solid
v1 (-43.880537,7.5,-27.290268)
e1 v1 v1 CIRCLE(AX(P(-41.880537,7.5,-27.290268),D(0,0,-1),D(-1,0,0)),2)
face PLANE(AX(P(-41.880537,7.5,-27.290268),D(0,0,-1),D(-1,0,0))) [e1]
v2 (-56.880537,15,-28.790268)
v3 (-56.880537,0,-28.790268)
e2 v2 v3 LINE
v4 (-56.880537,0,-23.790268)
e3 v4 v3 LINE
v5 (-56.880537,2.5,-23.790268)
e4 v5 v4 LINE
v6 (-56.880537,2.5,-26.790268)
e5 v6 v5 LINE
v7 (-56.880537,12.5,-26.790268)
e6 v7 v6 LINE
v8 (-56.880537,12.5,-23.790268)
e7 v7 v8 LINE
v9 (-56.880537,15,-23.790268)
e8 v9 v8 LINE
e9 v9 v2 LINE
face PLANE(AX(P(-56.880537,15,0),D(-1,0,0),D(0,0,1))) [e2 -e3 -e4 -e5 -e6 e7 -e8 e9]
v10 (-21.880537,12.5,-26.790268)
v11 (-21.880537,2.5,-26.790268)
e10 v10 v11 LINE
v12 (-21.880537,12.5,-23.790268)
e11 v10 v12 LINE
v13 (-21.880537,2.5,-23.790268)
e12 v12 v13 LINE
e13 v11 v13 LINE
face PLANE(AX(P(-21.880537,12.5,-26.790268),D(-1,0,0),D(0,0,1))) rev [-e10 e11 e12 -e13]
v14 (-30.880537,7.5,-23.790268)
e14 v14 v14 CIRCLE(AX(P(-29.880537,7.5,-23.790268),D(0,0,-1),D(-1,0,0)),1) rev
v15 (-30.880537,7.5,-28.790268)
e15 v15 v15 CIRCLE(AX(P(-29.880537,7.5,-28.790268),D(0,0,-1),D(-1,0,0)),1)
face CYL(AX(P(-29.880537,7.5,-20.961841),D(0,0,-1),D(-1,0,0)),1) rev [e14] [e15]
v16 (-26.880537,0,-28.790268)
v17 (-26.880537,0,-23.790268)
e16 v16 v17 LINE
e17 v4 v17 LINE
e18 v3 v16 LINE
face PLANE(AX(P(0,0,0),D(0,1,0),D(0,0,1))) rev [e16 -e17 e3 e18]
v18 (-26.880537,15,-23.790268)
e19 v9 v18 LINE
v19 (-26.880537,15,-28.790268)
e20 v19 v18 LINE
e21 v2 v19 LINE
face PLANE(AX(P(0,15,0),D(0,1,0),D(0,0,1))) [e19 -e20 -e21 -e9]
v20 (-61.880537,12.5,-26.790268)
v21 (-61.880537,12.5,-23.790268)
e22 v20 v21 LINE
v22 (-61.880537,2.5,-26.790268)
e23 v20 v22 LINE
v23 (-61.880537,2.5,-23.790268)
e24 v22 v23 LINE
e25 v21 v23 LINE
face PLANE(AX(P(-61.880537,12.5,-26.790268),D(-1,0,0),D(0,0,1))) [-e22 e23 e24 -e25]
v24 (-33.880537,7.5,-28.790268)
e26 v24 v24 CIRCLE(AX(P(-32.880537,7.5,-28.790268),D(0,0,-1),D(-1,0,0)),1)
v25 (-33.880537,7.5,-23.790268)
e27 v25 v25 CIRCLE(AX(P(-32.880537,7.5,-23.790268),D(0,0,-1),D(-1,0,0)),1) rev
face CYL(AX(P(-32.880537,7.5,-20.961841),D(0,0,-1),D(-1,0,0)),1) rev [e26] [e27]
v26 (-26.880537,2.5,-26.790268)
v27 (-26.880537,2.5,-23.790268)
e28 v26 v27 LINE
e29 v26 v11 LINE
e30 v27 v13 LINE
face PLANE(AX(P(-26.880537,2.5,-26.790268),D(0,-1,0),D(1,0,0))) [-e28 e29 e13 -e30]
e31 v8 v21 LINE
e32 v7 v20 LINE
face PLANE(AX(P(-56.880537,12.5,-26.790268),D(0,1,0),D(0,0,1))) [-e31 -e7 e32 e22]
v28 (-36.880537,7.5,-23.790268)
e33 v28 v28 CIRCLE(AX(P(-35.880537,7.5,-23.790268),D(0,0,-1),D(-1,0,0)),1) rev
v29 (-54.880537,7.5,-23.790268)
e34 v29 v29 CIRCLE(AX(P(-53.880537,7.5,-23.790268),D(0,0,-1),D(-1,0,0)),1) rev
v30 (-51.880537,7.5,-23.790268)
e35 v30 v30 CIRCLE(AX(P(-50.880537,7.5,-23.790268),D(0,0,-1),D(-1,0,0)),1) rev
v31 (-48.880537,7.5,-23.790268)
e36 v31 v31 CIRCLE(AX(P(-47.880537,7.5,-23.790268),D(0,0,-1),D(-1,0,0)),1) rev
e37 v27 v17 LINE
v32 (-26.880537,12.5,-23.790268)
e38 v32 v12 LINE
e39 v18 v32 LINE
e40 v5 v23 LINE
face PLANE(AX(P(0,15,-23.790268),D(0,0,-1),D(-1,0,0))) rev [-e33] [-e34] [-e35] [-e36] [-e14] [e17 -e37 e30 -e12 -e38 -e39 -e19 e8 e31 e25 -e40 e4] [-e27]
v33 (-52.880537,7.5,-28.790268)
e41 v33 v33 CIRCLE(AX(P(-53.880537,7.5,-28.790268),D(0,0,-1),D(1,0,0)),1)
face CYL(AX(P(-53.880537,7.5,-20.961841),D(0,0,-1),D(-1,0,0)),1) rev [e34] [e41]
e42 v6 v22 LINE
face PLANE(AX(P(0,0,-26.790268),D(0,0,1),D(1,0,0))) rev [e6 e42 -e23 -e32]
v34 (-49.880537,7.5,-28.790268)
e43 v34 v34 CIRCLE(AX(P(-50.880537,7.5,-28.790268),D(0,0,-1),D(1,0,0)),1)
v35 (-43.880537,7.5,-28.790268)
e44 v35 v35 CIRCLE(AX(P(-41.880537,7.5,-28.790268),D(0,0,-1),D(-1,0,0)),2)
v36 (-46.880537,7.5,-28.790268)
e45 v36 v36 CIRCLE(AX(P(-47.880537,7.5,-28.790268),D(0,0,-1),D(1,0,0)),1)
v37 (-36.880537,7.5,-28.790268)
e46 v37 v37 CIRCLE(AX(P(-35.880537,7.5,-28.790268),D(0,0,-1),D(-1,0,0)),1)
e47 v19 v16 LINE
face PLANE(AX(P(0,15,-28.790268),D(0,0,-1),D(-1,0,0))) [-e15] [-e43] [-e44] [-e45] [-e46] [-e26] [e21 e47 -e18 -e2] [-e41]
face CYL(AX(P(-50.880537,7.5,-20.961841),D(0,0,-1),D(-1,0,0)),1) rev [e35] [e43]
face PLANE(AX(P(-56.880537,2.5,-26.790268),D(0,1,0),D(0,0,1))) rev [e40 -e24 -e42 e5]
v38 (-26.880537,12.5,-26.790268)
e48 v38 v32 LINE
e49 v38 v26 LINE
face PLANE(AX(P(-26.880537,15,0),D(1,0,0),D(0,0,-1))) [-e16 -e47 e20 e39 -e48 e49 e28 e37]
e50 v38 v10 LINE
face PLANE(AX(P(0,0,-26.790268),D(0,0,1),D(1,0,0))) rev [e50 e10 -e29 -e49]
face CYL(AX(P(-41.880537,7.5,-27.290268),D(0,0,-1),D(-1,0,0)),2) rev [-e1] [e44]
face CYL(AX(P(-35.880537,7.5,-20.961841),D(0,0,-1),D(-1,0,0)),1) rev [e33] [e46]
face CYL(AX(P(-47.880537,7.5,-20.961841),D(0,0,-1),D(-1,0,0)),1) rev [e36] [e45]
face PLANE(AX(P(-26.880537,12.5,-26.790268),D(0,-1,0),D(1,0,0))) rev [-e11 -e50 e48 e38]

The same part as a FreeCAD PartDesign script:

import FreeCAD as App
import Part
import Sketcher

V = App.Vector
Q = App.Units.Quantity


def add_polygon(sketch, points):
    """Adds a closed chain of lines whose ends are joined by coincident constraints."""
    first, n = sketch.GeometryCount, len(points)
    for a, b in zip(points, points[1:] + points[:1]):
        sketch.addGeometry(Part.LineSegment(App.Vector(*a, 0), App.Vector(*b, 0)), False)
    for i in range(n):
        sketch.addConstraint(Sketcher.Constraint("Coincident", first + i, 2, first + (i + 1) % n, 1))

doc = App.newDocument("Part")
body = doc.addObject("PartDesign::Body", "Body")

sketch1 = body.newObject("Sketcher::SketchObject", "Sketch")
sketch1.AttachmentSupport = (doc.getObject("XZ_Plane"), [""])
sketch1.MapMode = "FlatFace"
add_polygon(sketch1, [(-56.880537, -28.790268), (-56.880537, -23.790268), (-26.880537, -23.790268), (-26.880537, -28.790268)])
sketch1.addConstraint([
    Sketcher.Constraint("Vertical", 0),
    Sketcher.Constraint("Horizontal", 1),
    Sketcher.Constraint("Vertical", 2),
    Sketcher.Constraint("Horizontal", 3),
    Sketcher.Constraint("DistanceX", 1, 1, 1, 2, Q("30 mm")),
    Sketcher.Constraint("DistanceY", 0, 1, 0, 2, Q("5 mm")),
    Sketcher.Constraint("DistanceY", 0, 2, -1, 1, Q("23.790268 mm")),
    Sketcher.Constraint("DistanceX", 0, 2, -1, 1, Q("56.880537 mm")),
])
pad1 = body.newObject("PartDesign::Pad", "Pad")
pad1.Profile = sketch1
pad1.Length = 15
pad1.Reversed = True

sketch2 = body.newObject("Sketcher::SketchObject", "Sketch001")
sketch2.AttachmentSupport = (doc.getObject("XY_Plane"), [""])
sketch2.MapMode = "FlatFace"
sketch2.AttachmentOffset = App.Placement(V(0, 0, -28.790268), App.Rotation())
sketch2.addGeometry([
    Part.Circle(V(-35.880537, 7.5, 0), V(0, 0, 1), 1),
    Part.Circle(V(-32.880537, 7.5, 0), V(0, 0, 1), 1),
    Part.Circle(V(-29.880537, 7.5, 0), V(0, 0, 1), 1),
    Part.Circle(V(-53.880537, 7.5, 0), V(0, 0, 1), 1),
    Part.Circle(V(-50.880537, 7.5, 0), V(0, 0, 1), 1),
    Part.Circle(V(-47.880537, 7.5, 0), V(0, 0, 1), 1),
], False)
sketch2.addConstraint([
    Sketcher.Constraint("Equal", 0, 1),
    Sketcher.Constraint("Equal", 1, 2),
    Sketcher.Constraint("Equal", 2, 3),
    Sketcher.Constraint("Equal", 3, 4),
    Sketcher.Constraint("Equal", 4, 5),
    Sketcher.Constraint("Horizontal", 0, 3, 1, 3),
    Sketcher.Constraint("Horizontal", 1, 3, 2, 3),
    Sketcher.Constraint("Horizontal", 2, 3, 3, 3),
    Sketcher.Constraint("Horizontal", 3, 3, 4, 3),
    Sketcher.Constraint("Horizontal", 4, 3, 5, 3),
    Sketcher.Constraint("Diameter", 0, Q("2 mm")),
    Sketcher.Constraint("DistanceX", 0, 3, 1, 3, Q("3 mm")),
    Sketcher.Constraint("DistanceX", 1, 3, 2, 3, Q("3 mm")),
    Sketcher.Constraint("DistanceX", 3, 3, 0, 3, Q("18 mm")),
    Sketcher.Constraint("DistanceX", 3, 3, 4, 3, Q("3 mm")),
    Sketcher.Constraint("DistanceX", 4, 3, 5, 3, Q("3 mm")),
    Sketcher.Constraint("DistanceY", -1, 1, 0, 3, Q("7.5 mm")),
    Sketcher.Constraint("DistanceX", 0, 3, -1, 1, Q("35.880537 mm")),
])
pocket1 = body.newObject("PartDesign::Pocket", "Pocket")
pocket1.Profile = sketch2
pocket1.Length = 5
pocket1.Reversed = True

sketch3 = body.newObject("Sketcher::SketchObject", "Sketch002")
sketch3.AttachmentSupport = (doc.getObject("XY_Plane"), [""])
sketch3.MapMode = "FlatFace"
sketch3.AttachmentOffset = App.Placement(V(0, 0, -28.790268), App.Rotation())
sketch3.addGeometry(Part.Circle(V(-41.880537, 7.5, 0), V(0, 0, 1), 2), False)
sketch3.addConstraint([
    Sketcher.Constraint("Diameter", 0, Q("4 mm")),
    Sketcher.Constraint("DistanceY", -1, 1, 0, 3, Q("7.5 mm")),
    Sketcher.Constraint("DistanceX", 0, 3, -1, 1, Q("41.880537 mm")),
])
pocket2 = body.newObject("PartDesign::Pocket", "Pocket001")
pocket2.Profile = sketch3
pocket2.Length = 1.5
pocket2.Reversed = True

sketch4 = body.newObject("Sketcher::SketchObject", "Sketch003")
sketch4.AttachmentSupport = (doc.getObject("XY_Plane"), [""])
sketch4.MapMode = "FlatFace"
sketch4.AttachmentOffset = App.Placement(V(0, 0, -23.790268), App.Rotation())
add_polygon(sketch4, [(-61.880537, 12.5), (-61.880537, 2.5), (-56.880537, 2.5), (-56.880537, 12.5)])
add_polygon(sketch4, [(-26.880537, 12.5), (-26.880537, 2.5), (-21.880537, 2.5), (-21.880537, 12.5)])
sketch4.addConstraint([
    Sketcher.Constraint("Vertical", 0),
    Sketcher.Constraint("Horizontal", 1),
    Sketcher.Constraint("Vertical", 2),
    Sketcher.Constraint("Horizontal", 3),
    Sketcher.Constraint("Vertical", 4),
    Sketcher.Constraint("Horizontal", 5),
    Sketcher.Constraint("Vertical", 6),
    Sketcher.Constraint("Horizontal", 7),
    Sketcher.Constraint("Horizontal", 1, 2, 4, 2),
    Sketcher.Constraint("Horizontal", 3, 2, 6, 2),
    Sketcher.Constraint("Equal", 3, 5),
    Sketcher.Constraint("DistanceX", 1, 1, 1, 2, Q("5 mm")),
    Sketcher.Constraint("DistanceY", 0, 2, 0, 1, Q("10 mm")),
    Sketcher.Constraint("DistanceX", 1, 2, 4, 2, Q("30 mm")),
    Sketcher.Constraint("DistanceY", -1, 1, 0, 2, Q("2.5 mm")),
    Sketcher.Constraint("DistanceX", 0, 2, -1, 1, Q("61.880537 mm")),
])
pad2 = body.newObject("PartDesign::Pad", "Pad001")
pad2.Profile = sketch4
pad2.Length = 3
pad2.Reversed = True

doc.recompute()
